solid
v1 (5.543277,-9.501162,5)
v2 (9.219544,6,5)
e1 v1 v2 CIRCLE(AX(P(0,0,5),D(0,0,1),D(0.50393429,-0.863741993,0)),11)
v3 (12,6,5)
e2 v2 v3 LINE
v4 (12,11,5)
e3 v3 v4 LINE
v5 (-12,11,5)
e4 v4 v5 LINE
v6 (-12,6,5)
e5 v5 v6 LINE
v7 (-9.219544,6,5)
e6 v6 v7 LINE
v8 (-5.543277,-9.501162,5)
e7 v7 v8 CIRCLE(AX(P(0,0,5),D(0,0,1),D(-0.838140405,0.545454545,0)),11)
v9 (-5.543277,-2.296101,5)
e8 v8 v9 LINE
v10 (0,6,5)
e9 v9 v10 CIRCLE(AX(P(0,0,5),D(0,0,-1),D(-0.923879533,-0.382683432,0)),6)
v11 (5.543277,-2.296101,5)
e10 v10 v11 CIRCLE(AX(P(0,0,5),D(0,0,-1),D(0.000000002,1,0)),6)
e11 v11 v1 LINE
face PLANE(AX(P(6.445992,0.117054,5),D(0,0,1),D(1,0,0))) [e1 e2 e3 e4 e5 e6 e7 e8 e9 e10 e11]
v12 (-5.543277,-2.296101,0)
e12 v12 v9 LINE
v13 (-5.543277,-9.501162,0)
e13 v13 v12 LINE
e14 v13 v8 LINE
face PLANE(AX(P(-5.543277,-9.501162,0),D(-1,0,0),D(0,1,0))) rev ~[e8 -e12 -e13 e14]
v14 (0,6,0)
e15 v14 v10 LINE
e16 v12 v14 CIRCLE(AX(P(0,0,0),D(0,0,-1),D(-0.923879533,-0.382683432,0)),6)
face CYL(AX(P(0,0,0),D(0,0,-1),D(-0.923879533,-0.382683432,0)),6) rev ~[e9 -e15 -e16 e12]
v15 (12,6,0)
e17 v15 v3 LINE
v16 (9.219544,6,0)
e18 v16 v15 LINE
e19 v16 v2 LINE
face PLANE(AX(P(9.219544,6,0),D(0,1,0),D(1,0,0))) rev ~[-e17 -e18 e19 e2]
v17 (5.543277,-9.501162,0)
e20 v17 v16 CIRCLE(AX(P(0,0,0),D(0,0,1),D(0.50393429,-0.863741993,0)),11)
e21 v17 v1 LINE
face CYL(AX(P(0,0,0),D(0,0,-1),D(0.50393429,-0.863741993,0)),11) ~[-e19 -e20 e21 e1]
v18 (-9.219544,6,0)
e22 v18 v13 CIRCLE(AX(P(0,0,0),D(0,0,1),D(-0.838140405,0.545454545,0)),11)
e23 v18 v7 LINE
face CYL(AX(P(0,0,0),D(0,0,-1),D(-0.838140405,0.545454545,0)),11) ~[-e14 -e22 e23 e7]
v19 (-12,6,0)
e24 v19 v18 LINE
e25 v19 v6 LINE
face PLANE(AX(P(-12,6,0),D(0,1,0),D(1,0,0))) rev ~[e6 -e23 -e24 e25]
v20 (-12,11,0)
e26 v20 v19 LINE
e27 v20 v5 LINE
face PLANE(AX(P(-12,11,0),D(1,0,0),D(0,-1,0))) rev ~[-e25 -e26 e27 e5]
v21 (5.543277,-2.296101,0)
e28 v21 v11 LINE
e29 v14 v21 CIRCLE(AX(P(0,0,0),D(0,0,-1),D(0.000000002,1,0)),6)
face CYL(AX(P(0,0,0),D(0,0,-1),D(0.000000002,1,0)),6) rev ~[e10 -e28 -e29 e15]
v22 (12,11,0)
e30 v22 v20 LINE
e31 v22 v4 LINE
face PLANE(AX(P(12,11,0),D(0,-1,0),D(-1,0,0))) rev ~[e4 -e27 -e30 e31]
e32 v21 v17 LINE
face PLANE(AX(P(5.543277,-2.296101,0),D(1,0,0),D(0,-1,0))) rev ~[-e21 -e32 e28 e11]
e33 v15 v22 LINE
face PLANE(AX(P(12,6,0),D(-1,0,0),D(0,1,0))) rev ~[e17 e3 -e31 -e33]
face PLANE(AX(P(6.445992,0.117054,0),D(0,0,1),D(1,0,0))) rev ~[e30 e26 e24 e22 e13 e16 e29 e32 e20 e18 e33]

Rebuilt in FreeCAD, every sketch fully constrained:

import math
import FreeCAD as App
import Part
import Sketcher

doc = App.newDocument("Part")
body = doc.addObject("PartDesign::Body", "Body")

sketch1 = body.newObject("Sketcher::SketchObject", "Sketch")
sketch1.AttachmentSupport = (doc.getObject("XY_Plane"), [""])
sketch1.MapMode = "FlatFace"
sketch1.addGeometry([
    Part.ArcOfCircle(Part.Circle(App.Vector(0, 0, 0), App.Vector(0, 0, 1), 6), math.radians(-22), math.radians(90)),
    Part.LineSegment(App.Vector(5.5, -2.3, 0), App.Vector(5.5, -9.5, 0)),
    Part.ArcOfCircle(Part.Circle(App.Vector(0, 0, 0), App.Vector(0, 0, 1), 11), math.radians(-60), math.radians(33)),
    Part.LineSegment(App.Vector(9.2, 6, 0), App.Vector(12, 6, 0)),
    Part.LineSegment(App.Vector(12, 6, 0), App.Vector(12, 11, 0)),
    Part.LineSegment(App.Vector(12, 11, 0), App.Vector(-12, 11, 0)),
    Part.LineSegment(App.Vector(-12, 11, 0), App.Vector(-12, 6, 0)),
    Part.LineSegment(App.Vector(-12, 6, 0), App.Vector(-9.2, 6, 0)),
    Part.ArcOfCircle(Part.Circle(App.Vector(0, 0, 0), App.Vector(0, 0, 1), 11), math.radians(147), math.radians(240)),
    Part.LineSegment(App.Vector(-5.5, -9.5, 0), App.Vector(-5.5, -2.3, 0)),
    Part.ArcOfCircle(Part.Circle(App.Vector(0, 0, 0), App.Vector(0, 0, 1), 6), math.radians(90), math.radians(202)),
], False)
sketch1.addConstraint([
    Sketcher.Constraint("Coincident", 0, 1, 1, 1),
    Sketcher.Constraint("Coincident", 1, 2, 2, 1),
    Sketcher.Constraint("Coincident", 2, 2, 3, 1),
    Sketcher.Constraint("Coincident", 3, 2, 4, 1),
    Sketcher.Constraint("Coincident", 4, 2, 5, 1),
    Sketcher.Constraint("Coincident", 5, 2, 6, 1),
    Sketcher.Constraint("Coincident", 6, 2, 7, 1),
    Sketcher.Constraint("Coincident", 7, 2, 8, 1),
    Sketcher.Constraint("Coincident", 8, 2, 9, 1),
    Sketcher.Constraint("Coincident", 9, 2, 10, 2),
    Sketcher.Constraint("Tangent", 10, 1, 0, 2),
    Sketcher.Constraint("Vertical", 1),
    Sketcher.Constraint("Horizontal", 3),
    Sketcher.Constraint("Vertical", 4),
    Sketcher.Constraint("Horizontal", 5),
    Sketcher.Constraint("Vertical", 6),
    Sketcher.Constraint("Horizontal", 7),
    Sketcher.Constraint("Vertical", 9),
    Sketcher.Constraint("Coincident", 0, 3, -1, 1),
    Sketcher.Constraint("Coincident", 2, 3, -1, 1),
    Sketcher.Constraint("Coincident", 8, 3, -1, 1),
    Sketcher.Constraint("Equal", 2, 8),
    Sketcher.Constraint("Equal", 0, 10),
    Sketcher.Constraint("Symmetric", 3, 2, 6, 2, -2),
    Sketcher.Constraint("PointOnObject", 10, 1, -2),
    Sketcher.Constraint("Horizontal", 1, 2, 8, 2),
    Sketcher.Constraint("Horizontal", 7, 2, 10, 1),
    Sketcher.Constraint("Radius", 0, 6.0),
    Sketcher.Constraint("Radius", 2, 11.0),
    Sketcher.Constraint("DistanceX", 5, 2, 5, 1, 24.0),
    Sketcher.Constraint("DistanceY", 4, 1, 4, 2, 5.0),
    Sketcher.Constraint("DistanceY", 1, 2, 1, 1, 7.205061),
])
pad1 = body.newObject("PartDesign::Pad", "Pad")
pad1.Profile = sketch1
pad1.Length = 5

doc.recompute()
